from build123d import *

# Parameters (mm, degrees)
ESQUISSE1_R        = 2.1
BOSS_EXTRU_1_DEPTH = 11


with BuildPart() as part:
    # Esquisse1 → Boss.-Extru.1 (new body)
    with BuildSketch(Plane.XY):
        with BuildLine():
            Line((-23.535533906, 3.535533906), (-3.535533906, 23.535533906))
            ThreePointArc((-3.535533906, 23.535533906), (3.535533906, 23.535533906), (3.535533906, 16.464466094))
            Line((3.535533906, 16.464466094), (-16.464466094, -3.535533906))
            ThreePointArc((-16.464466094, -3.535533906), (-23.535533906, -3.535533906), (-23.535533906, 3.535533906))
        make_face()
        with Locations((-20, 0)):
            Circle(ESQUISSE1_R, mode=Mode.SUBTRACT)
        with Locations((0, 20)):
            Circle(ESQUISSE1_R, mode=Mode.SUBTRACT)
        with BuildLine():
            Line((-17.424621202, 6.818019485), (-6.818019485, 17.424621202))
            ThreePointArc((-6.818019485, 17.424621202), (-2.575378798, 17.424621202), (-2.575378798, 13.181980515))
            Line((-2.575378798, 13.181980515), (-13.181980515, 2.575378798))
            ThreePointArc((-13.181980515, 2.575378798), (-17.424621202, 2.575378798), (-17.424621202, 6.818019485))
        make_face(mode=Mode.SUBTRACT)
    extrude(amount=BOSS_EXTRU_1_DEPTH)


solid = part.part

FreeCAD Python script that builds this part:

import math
import FreeCAD as App
import Part
import Sketcher
Q = App.Units.Quantity

doc = App.newDocument("Part")
body = doc.addObject("PartDesign::Body", "Body")

# Sketch on XY plane
sketch1 = body.newObject("Sketcher::SketchObject", "Sketch")
sketch1.AttachmentSupport = (doc.getObject("XY_Plane"), [""])
sketch1.MapMode = "FlatFace"
sketch1.addGeometry(Part.LineSegment(App.Vector(-3.5, 23.5, 0), App.Vector(-23.5, 3.5, 0)), False)
sketch1.addGeometry(Part.ArcOfCircle(Part.Circle(App.Vector(-20, 0, 0), App.Vector(0, 0, 1), 5), math.radians(135), math.radians(315)), False)
sketch1.addGeometry(Part.LineSegment(App.Vector(-16.5, -3.5, 0), App.Vector(3.5, 16.5, 0)), False)
sketch1.addGeometry(Part.ArcOfCircle(Part.Circle(App.Vector(0, 20, 0), App.Vector(0, 0, 1), 5), math.radians(-45), math.radians(135)), False)
sketch1.addGeometry(Part.Circle(App.Vector(-20, 0, 0), App.Vector(0, 0, 1), 2.1), False)
sketch1.addGeometry(Part.LineSegment(App.Vector(-17.4, 6.8, 0), App.Vector(-6.8, 17.4, 0)), False)
sketch1.addGeometry(Part.ArcOfCircle(Part.Circle(App.Vector(-4.7, 15.3, 0), App.Vector(0, 0, 1), 3), math.radians(-45), math.radians(135)), False)
sketch1.addGeometry(Part.LineSegment(App.Vector(-2.6, 13.2, 0), App.Vector(-13.2, 2.6, 0)), False)
sketch1.addGeometry(Part.ArcOfCircle(Part.Circle(App.Vector(-15.3, 4.7, 0), App.Vector(0, 0, 1), 3), math.radians(135), math.radians(315)), False)
sketch1.addGeometry(Part.Circle(App.Vector(0, 20, 0), App.Vector(0, 0, 1), 2.1), False)
sketch1.addConstraint(Sketcher.Constraint("Tangent", 0, 2, 1, 1))
sketch1.addConstraint(Sketcher.Constraint("Tangent", 1, 2, 2, 1))
sketch1.addConstraint(Sketcher.Constraint("Tangent", 2, 2, 3, 1))
sketch1.addConstraint(Sketcher.Constraint("Tangent", 3, 2, 0, 1))
sketch1.addConstraint(Sketcher.Constraint("Tangent", 5, 2, 6, 2))
sketch1.addConstraint(Sketcher.Constraint("Tangent", 6, 1, 7, 1))
sketch1.addConstraint(Sketcher.Constraint("Tangent", 7, 2, 8, 2))
sketch1.addConstraint(Sketcher.Constraint("Tangent", 8, 1, 5, 1))
sketch1.addConstraint(Sketcher.Constraint("Coincident", 4, 3, 1, 3))
sketch1.addConstraint(Sketcher.Constraint("Coincident", 9, 3, 3, 3))
sketch1.addConstraint(Sketcher.Constraint("Equal", 1, 3))
sketch1.addConstraint(Sketcher.Constraint("Equal", 6, 8))
sketch1.addConstraint(Sketcher.Constraint("Equal", 4, 9))
sketch1.addConstraint(Sketcher.Constraint("PointOnObject", 1, 3, -1))
sketch1.addConstraint(Sketcher.Constraint("PointOnObject", 3, 3, -2))
sketch1.addConstraint(Sketcher.Constraint("Parallel", 2, 5))
sketch1.addConstraint(Sketcher.Constraint("Radius", 1, Q("5 mm")))
sketch1.addConstraint(Sketcher.Constraint("Radius", 6, Q("3 mm")))
sketch1.addConstraint(Sketcher.Constraint("Diameter", 4, Q("4.2 mm")))
sketch1.addConstraint(Sketcher.Constraint("Angle", 0, Q("-135 deg")))
sketch1.addConstraint(Sketcher.Constraint("Distance", 5, Q("15 mm")))
sketch1.addConstraint(Sketcher.Constraint("DistanceX", 1, 3, -1, 1, Q("20 mm")))
sketch1.addConstraint(Sketcher.Constraint("DistanceX", 6, 3, -1, 1, Q("4.696699 mm")))
sketch1.addConstraint(Sketcher.Constraint("DistanceY", -1, 1, 6, 3, Q("15.303301 mm")))
pad1 = body.newObject("PartDesign::Pad", "Pad")
pad1.Profile = sketch1
pad1.Length = 11

doc.recompute()
